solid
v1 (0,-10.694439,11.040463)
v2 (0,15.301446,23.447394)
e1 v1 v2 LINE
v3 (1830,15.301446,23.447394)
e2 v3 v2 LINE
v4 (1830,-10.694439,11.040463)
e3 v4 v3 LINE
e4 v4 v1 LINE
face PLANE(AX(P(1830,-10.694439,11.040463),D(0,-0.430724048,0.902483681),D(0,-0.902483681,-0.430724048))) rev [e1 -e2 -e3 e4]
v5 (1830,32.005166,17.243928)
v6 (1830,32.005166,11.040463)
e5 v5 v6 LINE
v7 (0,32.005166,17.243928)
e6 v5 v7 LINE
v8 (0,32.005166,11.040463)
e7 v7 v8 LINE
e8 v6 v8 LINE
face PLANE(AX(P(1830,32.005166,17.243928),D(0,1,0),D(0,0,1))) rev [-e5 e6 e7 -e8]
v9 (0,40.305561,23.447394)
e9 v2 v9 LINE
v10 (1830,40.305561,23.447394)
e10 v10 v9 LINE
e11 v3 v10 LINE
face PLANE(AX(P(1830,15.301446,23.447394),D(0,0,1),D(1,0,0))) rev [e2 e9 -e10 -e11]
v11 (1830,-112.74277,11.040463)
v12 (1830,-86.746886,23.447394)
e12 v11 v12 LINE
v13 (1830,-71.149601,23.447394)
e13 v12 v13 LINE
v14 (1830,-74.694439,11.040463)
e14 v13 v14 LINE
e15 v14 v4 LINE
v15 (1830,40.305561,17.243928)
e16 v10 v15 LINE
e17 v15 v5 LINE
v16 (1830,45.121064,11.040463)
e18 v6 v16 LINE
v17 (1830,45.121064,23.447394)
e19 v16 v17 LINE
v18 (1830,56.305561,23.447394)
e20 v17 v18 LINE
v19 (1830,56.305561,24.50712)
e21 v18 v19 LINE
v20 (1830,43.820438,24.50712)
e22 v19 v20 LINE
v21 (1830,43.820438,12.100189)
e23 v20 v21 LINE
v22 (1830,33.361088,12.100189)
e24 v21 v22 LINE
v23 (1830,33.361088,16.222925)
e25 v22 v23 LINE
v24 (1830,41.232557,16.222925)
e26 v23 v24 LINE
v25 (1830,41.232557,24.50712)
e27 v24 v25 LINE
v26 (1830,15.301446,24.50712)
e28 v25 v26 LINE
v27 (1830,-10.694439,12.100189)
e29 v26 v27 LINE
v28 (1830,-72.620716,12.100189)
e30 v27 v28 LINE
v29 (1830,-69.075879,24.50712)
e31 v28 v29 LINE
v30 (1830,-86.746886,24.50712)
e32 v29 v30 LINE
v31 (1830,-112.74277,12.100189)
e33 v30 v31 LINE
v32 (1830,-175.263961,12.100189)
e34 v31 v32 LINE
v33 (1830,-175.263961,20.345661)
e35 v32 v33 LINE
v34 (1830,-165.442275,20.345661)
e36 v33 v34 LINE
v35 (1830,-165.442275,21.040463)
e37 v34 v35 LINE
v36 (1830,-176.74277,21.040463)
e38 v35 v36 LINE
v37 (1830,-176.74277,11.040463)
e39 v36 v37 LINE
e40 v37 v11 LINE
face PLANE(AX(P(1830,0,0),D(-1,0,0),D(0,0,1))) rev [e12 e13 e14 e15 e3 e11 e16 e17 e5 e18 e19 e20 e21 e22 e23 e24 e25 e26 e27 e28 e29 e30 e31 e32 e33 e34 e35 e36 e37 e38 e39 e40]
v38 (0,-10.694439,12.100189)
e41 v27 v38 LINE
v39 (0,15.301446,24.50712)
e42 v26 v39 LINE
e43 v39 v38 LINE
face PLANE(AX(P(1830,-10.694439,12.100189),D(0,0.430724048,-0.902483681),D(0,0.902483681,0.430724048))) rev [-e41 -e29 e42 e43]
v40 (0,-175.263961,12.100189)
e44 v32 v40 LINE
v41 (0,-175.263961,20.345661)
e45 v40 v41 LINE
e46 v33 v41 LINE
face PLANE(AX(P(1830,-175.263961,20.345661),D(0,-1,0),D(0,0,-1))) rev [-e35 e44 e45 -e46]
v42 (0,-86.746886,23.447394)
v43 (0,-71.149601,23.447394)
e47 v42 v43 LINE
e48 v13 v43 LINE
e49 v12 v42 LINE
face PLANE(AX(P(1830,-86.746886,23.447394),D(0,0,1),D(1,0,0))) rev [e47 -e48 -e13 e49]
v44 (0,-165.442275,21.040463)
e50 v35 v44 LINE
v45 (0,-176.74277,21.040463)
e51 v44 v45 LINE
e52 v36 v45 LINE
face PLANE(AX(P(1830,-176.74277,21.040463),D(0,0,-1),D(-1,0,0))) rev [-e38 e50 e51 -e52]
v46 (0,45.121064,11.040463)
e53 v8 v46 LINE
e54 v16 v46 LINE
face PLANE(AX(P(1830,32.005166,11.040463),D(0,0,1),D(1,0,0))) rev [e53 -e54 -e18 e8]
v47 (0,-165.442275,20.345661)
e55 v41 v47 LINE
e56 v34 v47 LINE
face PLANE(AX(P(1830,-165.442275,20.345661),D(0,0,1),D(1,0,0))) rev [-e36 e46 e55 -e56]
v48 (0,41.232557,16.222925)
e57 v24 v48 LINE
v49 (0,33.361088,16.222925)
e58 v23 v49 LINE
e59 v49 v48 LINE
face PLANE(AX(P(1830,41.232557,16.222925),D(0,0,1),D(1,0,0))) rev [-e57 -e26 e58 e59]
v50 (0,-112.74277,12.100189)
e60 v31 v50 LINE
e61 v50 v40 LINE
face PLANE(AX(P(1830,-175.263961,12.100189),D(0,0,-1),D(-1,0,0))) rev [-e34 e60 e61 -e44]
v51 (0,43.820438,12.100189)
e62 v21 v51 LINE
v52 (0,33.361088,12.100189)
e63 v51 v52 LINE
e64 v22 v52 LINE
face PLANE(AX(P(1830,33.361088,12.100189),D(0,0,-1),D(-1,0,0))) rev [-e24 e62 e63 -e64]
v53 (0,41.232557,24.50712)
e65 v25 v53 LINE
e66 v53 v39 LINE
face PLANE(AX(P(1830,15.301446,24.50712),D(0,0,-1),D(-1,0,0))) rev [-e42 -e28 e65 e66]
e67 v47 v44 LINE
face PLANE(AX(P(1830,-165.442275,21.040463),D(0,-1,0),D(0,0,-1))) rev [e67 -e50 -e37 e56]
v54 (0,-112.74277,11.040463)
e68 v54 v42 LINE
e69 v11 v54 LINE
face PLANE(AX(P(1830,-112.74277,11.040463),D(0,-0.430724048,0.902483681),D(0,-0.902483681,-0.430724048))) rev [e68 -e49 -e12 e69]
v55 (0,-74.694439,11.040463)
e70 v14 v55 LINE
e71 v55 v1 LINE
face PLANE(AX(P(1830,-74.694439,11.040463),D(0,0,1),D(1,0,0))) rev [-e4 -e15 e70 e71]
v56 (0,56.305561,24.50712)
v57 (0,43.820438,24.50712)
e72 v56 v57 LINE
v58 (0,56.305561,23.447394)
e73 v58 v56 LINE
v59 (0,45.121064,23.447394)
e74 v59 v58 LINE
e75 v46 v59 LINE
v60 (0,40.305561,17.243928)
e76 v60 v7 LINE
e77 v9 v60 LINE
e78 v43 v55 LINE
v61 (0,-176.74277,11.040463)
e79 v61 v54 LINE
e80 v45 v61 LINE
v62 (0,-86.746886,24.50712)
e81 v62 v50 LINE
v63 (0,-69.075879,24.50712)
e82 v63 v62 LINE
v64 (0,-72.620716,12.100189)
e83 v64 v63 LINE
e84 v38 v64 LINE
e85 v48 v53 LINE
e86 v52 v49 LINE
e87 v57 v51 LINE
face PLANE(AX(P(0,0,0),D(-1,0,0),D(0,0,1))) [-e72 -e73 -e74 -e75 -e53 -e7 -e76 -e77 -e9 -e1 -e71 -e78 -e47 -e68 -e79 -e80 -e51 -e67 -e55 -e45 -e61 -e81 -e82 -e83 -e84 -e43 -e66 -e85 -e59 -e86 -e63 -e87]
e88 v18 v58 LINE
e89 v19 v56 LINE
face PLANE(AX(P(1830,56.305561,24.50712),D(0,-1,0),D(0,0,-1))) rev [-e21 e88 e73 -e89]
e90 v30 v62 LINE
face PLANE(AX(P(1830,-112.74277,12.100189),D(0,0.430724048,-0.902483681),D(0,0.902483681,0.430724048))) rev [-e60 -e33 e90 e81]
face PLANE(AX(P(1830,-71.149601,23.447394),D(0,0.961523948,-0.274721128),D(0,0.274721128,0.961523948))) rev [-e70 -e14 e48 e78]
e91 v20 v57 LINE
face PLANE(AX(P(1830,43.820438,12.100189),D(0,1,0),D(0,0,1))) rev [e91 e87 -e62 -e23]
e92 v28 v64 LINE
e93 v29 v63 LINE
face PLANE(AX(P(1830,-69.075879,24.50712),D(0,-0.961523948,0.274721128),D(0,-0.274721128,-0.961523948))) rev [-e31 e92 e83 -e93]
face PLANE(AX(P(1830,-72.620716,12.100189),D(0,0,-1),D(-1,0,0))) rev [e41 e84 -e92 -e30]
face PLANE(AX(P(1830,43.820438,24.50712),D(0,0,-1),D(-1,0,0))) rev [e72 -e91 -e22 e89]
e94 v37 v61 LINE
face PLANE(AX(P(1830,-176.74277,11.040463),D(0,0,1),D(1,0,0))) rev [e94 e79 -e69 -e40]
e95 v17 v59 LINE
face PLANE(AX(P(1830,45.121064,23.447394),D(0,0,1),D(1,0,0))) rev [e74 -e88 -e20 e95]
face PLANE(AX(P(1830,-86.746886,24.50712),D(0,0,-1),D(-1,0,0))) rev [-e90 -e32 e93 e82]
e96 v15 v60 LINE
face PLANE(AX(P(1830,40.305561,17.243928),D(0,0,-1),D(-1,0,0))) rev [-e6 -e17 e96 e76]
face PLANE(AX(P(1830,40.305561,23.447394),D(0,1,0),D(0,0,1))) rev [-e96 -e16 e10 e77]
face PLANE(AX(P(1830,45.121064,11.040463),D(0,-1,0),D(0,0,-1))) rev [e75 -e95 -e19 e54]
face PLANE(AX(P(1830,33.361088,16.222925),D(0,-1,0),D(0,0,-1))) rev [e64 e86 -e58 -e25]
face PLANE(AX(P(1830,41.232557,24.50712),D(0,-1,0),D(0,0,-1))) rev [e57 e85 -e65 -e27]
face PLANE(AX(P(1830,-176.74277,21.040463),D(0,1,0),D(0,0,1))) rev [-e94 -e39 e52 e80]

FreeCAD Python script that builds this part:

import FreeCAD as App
import Part
import Sketcher
from FreeCAD import Vector
Q = App.Units.Quantity


def add_polygon(sketch, points):
    """Adds a closed chain of lines whose ends are joined by coincident constraints."""
    first, n = sketch.GeometryCount, len(points)
    for a, b in zip(points, points[1:] + points[:1]):
        sketch.addGeometry(Part.LineSegment(App.Vector(*a, 0), App.Vector(*b, 0)), False)
    for i in range(n):
        sketch.addConstraint(Sketcher.Constraint("Coincident", first + i, 2, first + (i + 1) % n, 1))

doc = App.newDocument("Part")
body = doc.addObject("PartDesign::Body", "Body")

# Sketch on YZ plane
sketch1 = body.newObject("Sketcher::SketchObject", "Sketch")
sketch1.AttachmentSupport = (doc.getObject("YZ_Plane"), [""])
sketch1.MapMode = "FlatFace"
add_polygon(sketch1, [(-176.7, 21), (-176.7, 11), (-112.7, 11), (-86.7, 23.4), (-71.1, 23.4), (-74.7, 11), (-10.7, 11), (15.3, 23.4), (40.3, 23.4), (40.3, 17.2), (32, 17.2), (32, 11), (45.1, 11), (45.1, 23.4), (56.3, 23.4), (56.3, 24.5), (43.8, 24.5), (43.8, 12.1), (33.4, 12.1), (33.4, 16.2), (41.2, 16.2), (41.2, 24.5), (15.3, 24.5), (-10.7, 12.1), (-72.6, 12.1), (-69.1, 24.5), (-86.7, 24.5), (-112.7, 12.1), (-175.3, 12.1), (-175.3, 20.3), (-165.4, 20.3), (-165.4, 21)])  # lines 0-31
sketch1.addConstraint([
    Sketcher.Constraint("Vertical", 0),
    Sketcher.Constraint("Horizontal", 1),
    Sketcher.Constraint("Horizontal", 3),
    Sketcher.Constraint("Horizontal", 5),
    Sketcher.Constraint("Horizontal", 7),
    Sketcher.Constraint("Vertical", 8),
    Sketcher.Constraint("Horizontal", 9),
    Sketcher.Constraint("Vertical", 10),
    Sketcher.Constraint("Horizontal", 11),
    Sketcher.Constraint("Vertical", 12),
    Sketcher.Constraint("Horizontal", 13),
    Sketcher.Constraint("Vertical", 14),
    Sketcher.Constraint("Horizontal", 15),
    Sketcher.Constraint("Vertical", 16),
    Sketcher.Constraint("Horizontal", 17),
    Sketcher.Constraint("Vertical", 18),
    Sketcher.Constraint("Horizontal", 19),
    Sketcher.Constraint("Vertical", 20),
    Sketcher.Constraint("Horizontal", 21),
    Sketcher.Constraint("Horizontal", 23),
    Sketcher.Constraint("Horizontal", 25),
    Sketcher.Constraint("Horizontal", 27),
    Sketcher.Constraint("Vertical", 28),
    Sketcher.Constraint("Horizontal", 29),
    Sketcher.Constraint("Vertical", 30),
    Sketcher.Constraint("Horizontal", 31),
    Sketcher.Constraint("Parallel", 2, 6),
    Sketcher.Constraint("Parallel", 6, 22),
    Sketcher.Constraint("Parallel", 4, 24),
    Sketcher.Constraint("Parallel", 22, 26),
    Sketcher.Constraint("Horizontal", 1, 2, 4, 2),
    Sketcher.Constraint("Horizontal", 3, 2, 6, 2),
    Sketcher.Constraint("Horizontal", 5, 2, 10, 2),
    Sketcher.Constraint("Horizontal", 7, 2, 12, 2),
    Sketcher.Constraint("Horizontal", 15, 2, 20, 2),
    Sketcher.Constraint("Horizontal", 17, 2, 22, 2),
    Sketcher.Constraint("Horizontal", 21, 2, 24, 2),
    Sketcher.Constraint("Horizontal", 23, 2, 26, 2),
    Sketcher.Constraint("Vertical", 6, 2, 21, 2),
    Sketcher.Constraint("Vertical", 5, 2, 22, 2),
    Sketcher.Constraint("Vertical", 2, 2, 25, 2),
    Sketcher.Constraint("Equal", 1, 5),
    Sketcher.Constraint("Equal", 8, 10),
    Sketcher.Constraint("DistanceX", 1, 1, 1, 2, Q("64 mm")),
    Sketcher.Constraint("DistanceY", 0, 2, 0, 1, Q("10 mm")),
    Sketcher.Constraint("DistanceX", 5, 2, 7, 2, Q("51 mm")),
    Sketcher.Constraint("DistanceX", 7, 2, 13, 2, Q("16 mm")),
    Sketcher.Constraint("DistanceX", 11, 1, 11, 2, Q("13.115898 mm")),
    Sketcher.Constraint("DistanceY", 30, 1, 30, 2, Q("0.694802 mm")),
    Sketcher.Constraint("DistanceX", 17, 2, 17, 1, Q("10.45935 mm")),
    Sketcher.Constraint("DistanceX", 19, 1, 19, 2, Q("7.87147 mm")),
    Sketcher.Constraint("DistanceX", 21, 2, 21, 1, Q("25.931112 mm")),
    Sketcher.Constraint("DistanceX", 27, 2, 27, 1, Q("62.521191 mm")),
    Sketcher.Constraint("DistanceY", 12, 1, 12, 2, Q("12.406931 mm")),
    Sketcher.Constraint("DistanceX", 3, 2, -1, 1, Q("71.149601 mm")),
    Sketcher.Constraint("DistanceX", 3, 1, 3, 2, Q("15.597284 mm")),
    Sketcher.Constraint("DistanceX", 7, 1, 7, 2, Q("25.004116 mm")),
    Sketcher.Constraint("DistanceX", 9, 2, 9, 1, Q("8.300395 mm")),
    Sketcher.Constraint("DistanceX", 23, 2, 23, 1, Q("61.926278 mm")),
    Sketcher.Constraint("DistanceX", 29, 1, 29, 2, Q("9.821686 mm")),
    Sketcher.Constraint("DistanceY", 14, 1, 14, 2, Q("1.059726 mm")),
    Sketcher.Constraint("DistanceY", 18, 1, 18, 2, Q("4.122736 mm")),
    Sketcher.Constraint("DistanceX", 4, 2, -1, 1, Q("74.694439 mm")),
    Sketcher.Constraint("DistanceY", -1, 1, 8, 2, Q("17.243928 mm")),
])
pad1 = body.newObject("PartDesign::Pad", "Pad")
pad1.Profile = sketch1
pad1.Length = 1830

doc.recompute()
